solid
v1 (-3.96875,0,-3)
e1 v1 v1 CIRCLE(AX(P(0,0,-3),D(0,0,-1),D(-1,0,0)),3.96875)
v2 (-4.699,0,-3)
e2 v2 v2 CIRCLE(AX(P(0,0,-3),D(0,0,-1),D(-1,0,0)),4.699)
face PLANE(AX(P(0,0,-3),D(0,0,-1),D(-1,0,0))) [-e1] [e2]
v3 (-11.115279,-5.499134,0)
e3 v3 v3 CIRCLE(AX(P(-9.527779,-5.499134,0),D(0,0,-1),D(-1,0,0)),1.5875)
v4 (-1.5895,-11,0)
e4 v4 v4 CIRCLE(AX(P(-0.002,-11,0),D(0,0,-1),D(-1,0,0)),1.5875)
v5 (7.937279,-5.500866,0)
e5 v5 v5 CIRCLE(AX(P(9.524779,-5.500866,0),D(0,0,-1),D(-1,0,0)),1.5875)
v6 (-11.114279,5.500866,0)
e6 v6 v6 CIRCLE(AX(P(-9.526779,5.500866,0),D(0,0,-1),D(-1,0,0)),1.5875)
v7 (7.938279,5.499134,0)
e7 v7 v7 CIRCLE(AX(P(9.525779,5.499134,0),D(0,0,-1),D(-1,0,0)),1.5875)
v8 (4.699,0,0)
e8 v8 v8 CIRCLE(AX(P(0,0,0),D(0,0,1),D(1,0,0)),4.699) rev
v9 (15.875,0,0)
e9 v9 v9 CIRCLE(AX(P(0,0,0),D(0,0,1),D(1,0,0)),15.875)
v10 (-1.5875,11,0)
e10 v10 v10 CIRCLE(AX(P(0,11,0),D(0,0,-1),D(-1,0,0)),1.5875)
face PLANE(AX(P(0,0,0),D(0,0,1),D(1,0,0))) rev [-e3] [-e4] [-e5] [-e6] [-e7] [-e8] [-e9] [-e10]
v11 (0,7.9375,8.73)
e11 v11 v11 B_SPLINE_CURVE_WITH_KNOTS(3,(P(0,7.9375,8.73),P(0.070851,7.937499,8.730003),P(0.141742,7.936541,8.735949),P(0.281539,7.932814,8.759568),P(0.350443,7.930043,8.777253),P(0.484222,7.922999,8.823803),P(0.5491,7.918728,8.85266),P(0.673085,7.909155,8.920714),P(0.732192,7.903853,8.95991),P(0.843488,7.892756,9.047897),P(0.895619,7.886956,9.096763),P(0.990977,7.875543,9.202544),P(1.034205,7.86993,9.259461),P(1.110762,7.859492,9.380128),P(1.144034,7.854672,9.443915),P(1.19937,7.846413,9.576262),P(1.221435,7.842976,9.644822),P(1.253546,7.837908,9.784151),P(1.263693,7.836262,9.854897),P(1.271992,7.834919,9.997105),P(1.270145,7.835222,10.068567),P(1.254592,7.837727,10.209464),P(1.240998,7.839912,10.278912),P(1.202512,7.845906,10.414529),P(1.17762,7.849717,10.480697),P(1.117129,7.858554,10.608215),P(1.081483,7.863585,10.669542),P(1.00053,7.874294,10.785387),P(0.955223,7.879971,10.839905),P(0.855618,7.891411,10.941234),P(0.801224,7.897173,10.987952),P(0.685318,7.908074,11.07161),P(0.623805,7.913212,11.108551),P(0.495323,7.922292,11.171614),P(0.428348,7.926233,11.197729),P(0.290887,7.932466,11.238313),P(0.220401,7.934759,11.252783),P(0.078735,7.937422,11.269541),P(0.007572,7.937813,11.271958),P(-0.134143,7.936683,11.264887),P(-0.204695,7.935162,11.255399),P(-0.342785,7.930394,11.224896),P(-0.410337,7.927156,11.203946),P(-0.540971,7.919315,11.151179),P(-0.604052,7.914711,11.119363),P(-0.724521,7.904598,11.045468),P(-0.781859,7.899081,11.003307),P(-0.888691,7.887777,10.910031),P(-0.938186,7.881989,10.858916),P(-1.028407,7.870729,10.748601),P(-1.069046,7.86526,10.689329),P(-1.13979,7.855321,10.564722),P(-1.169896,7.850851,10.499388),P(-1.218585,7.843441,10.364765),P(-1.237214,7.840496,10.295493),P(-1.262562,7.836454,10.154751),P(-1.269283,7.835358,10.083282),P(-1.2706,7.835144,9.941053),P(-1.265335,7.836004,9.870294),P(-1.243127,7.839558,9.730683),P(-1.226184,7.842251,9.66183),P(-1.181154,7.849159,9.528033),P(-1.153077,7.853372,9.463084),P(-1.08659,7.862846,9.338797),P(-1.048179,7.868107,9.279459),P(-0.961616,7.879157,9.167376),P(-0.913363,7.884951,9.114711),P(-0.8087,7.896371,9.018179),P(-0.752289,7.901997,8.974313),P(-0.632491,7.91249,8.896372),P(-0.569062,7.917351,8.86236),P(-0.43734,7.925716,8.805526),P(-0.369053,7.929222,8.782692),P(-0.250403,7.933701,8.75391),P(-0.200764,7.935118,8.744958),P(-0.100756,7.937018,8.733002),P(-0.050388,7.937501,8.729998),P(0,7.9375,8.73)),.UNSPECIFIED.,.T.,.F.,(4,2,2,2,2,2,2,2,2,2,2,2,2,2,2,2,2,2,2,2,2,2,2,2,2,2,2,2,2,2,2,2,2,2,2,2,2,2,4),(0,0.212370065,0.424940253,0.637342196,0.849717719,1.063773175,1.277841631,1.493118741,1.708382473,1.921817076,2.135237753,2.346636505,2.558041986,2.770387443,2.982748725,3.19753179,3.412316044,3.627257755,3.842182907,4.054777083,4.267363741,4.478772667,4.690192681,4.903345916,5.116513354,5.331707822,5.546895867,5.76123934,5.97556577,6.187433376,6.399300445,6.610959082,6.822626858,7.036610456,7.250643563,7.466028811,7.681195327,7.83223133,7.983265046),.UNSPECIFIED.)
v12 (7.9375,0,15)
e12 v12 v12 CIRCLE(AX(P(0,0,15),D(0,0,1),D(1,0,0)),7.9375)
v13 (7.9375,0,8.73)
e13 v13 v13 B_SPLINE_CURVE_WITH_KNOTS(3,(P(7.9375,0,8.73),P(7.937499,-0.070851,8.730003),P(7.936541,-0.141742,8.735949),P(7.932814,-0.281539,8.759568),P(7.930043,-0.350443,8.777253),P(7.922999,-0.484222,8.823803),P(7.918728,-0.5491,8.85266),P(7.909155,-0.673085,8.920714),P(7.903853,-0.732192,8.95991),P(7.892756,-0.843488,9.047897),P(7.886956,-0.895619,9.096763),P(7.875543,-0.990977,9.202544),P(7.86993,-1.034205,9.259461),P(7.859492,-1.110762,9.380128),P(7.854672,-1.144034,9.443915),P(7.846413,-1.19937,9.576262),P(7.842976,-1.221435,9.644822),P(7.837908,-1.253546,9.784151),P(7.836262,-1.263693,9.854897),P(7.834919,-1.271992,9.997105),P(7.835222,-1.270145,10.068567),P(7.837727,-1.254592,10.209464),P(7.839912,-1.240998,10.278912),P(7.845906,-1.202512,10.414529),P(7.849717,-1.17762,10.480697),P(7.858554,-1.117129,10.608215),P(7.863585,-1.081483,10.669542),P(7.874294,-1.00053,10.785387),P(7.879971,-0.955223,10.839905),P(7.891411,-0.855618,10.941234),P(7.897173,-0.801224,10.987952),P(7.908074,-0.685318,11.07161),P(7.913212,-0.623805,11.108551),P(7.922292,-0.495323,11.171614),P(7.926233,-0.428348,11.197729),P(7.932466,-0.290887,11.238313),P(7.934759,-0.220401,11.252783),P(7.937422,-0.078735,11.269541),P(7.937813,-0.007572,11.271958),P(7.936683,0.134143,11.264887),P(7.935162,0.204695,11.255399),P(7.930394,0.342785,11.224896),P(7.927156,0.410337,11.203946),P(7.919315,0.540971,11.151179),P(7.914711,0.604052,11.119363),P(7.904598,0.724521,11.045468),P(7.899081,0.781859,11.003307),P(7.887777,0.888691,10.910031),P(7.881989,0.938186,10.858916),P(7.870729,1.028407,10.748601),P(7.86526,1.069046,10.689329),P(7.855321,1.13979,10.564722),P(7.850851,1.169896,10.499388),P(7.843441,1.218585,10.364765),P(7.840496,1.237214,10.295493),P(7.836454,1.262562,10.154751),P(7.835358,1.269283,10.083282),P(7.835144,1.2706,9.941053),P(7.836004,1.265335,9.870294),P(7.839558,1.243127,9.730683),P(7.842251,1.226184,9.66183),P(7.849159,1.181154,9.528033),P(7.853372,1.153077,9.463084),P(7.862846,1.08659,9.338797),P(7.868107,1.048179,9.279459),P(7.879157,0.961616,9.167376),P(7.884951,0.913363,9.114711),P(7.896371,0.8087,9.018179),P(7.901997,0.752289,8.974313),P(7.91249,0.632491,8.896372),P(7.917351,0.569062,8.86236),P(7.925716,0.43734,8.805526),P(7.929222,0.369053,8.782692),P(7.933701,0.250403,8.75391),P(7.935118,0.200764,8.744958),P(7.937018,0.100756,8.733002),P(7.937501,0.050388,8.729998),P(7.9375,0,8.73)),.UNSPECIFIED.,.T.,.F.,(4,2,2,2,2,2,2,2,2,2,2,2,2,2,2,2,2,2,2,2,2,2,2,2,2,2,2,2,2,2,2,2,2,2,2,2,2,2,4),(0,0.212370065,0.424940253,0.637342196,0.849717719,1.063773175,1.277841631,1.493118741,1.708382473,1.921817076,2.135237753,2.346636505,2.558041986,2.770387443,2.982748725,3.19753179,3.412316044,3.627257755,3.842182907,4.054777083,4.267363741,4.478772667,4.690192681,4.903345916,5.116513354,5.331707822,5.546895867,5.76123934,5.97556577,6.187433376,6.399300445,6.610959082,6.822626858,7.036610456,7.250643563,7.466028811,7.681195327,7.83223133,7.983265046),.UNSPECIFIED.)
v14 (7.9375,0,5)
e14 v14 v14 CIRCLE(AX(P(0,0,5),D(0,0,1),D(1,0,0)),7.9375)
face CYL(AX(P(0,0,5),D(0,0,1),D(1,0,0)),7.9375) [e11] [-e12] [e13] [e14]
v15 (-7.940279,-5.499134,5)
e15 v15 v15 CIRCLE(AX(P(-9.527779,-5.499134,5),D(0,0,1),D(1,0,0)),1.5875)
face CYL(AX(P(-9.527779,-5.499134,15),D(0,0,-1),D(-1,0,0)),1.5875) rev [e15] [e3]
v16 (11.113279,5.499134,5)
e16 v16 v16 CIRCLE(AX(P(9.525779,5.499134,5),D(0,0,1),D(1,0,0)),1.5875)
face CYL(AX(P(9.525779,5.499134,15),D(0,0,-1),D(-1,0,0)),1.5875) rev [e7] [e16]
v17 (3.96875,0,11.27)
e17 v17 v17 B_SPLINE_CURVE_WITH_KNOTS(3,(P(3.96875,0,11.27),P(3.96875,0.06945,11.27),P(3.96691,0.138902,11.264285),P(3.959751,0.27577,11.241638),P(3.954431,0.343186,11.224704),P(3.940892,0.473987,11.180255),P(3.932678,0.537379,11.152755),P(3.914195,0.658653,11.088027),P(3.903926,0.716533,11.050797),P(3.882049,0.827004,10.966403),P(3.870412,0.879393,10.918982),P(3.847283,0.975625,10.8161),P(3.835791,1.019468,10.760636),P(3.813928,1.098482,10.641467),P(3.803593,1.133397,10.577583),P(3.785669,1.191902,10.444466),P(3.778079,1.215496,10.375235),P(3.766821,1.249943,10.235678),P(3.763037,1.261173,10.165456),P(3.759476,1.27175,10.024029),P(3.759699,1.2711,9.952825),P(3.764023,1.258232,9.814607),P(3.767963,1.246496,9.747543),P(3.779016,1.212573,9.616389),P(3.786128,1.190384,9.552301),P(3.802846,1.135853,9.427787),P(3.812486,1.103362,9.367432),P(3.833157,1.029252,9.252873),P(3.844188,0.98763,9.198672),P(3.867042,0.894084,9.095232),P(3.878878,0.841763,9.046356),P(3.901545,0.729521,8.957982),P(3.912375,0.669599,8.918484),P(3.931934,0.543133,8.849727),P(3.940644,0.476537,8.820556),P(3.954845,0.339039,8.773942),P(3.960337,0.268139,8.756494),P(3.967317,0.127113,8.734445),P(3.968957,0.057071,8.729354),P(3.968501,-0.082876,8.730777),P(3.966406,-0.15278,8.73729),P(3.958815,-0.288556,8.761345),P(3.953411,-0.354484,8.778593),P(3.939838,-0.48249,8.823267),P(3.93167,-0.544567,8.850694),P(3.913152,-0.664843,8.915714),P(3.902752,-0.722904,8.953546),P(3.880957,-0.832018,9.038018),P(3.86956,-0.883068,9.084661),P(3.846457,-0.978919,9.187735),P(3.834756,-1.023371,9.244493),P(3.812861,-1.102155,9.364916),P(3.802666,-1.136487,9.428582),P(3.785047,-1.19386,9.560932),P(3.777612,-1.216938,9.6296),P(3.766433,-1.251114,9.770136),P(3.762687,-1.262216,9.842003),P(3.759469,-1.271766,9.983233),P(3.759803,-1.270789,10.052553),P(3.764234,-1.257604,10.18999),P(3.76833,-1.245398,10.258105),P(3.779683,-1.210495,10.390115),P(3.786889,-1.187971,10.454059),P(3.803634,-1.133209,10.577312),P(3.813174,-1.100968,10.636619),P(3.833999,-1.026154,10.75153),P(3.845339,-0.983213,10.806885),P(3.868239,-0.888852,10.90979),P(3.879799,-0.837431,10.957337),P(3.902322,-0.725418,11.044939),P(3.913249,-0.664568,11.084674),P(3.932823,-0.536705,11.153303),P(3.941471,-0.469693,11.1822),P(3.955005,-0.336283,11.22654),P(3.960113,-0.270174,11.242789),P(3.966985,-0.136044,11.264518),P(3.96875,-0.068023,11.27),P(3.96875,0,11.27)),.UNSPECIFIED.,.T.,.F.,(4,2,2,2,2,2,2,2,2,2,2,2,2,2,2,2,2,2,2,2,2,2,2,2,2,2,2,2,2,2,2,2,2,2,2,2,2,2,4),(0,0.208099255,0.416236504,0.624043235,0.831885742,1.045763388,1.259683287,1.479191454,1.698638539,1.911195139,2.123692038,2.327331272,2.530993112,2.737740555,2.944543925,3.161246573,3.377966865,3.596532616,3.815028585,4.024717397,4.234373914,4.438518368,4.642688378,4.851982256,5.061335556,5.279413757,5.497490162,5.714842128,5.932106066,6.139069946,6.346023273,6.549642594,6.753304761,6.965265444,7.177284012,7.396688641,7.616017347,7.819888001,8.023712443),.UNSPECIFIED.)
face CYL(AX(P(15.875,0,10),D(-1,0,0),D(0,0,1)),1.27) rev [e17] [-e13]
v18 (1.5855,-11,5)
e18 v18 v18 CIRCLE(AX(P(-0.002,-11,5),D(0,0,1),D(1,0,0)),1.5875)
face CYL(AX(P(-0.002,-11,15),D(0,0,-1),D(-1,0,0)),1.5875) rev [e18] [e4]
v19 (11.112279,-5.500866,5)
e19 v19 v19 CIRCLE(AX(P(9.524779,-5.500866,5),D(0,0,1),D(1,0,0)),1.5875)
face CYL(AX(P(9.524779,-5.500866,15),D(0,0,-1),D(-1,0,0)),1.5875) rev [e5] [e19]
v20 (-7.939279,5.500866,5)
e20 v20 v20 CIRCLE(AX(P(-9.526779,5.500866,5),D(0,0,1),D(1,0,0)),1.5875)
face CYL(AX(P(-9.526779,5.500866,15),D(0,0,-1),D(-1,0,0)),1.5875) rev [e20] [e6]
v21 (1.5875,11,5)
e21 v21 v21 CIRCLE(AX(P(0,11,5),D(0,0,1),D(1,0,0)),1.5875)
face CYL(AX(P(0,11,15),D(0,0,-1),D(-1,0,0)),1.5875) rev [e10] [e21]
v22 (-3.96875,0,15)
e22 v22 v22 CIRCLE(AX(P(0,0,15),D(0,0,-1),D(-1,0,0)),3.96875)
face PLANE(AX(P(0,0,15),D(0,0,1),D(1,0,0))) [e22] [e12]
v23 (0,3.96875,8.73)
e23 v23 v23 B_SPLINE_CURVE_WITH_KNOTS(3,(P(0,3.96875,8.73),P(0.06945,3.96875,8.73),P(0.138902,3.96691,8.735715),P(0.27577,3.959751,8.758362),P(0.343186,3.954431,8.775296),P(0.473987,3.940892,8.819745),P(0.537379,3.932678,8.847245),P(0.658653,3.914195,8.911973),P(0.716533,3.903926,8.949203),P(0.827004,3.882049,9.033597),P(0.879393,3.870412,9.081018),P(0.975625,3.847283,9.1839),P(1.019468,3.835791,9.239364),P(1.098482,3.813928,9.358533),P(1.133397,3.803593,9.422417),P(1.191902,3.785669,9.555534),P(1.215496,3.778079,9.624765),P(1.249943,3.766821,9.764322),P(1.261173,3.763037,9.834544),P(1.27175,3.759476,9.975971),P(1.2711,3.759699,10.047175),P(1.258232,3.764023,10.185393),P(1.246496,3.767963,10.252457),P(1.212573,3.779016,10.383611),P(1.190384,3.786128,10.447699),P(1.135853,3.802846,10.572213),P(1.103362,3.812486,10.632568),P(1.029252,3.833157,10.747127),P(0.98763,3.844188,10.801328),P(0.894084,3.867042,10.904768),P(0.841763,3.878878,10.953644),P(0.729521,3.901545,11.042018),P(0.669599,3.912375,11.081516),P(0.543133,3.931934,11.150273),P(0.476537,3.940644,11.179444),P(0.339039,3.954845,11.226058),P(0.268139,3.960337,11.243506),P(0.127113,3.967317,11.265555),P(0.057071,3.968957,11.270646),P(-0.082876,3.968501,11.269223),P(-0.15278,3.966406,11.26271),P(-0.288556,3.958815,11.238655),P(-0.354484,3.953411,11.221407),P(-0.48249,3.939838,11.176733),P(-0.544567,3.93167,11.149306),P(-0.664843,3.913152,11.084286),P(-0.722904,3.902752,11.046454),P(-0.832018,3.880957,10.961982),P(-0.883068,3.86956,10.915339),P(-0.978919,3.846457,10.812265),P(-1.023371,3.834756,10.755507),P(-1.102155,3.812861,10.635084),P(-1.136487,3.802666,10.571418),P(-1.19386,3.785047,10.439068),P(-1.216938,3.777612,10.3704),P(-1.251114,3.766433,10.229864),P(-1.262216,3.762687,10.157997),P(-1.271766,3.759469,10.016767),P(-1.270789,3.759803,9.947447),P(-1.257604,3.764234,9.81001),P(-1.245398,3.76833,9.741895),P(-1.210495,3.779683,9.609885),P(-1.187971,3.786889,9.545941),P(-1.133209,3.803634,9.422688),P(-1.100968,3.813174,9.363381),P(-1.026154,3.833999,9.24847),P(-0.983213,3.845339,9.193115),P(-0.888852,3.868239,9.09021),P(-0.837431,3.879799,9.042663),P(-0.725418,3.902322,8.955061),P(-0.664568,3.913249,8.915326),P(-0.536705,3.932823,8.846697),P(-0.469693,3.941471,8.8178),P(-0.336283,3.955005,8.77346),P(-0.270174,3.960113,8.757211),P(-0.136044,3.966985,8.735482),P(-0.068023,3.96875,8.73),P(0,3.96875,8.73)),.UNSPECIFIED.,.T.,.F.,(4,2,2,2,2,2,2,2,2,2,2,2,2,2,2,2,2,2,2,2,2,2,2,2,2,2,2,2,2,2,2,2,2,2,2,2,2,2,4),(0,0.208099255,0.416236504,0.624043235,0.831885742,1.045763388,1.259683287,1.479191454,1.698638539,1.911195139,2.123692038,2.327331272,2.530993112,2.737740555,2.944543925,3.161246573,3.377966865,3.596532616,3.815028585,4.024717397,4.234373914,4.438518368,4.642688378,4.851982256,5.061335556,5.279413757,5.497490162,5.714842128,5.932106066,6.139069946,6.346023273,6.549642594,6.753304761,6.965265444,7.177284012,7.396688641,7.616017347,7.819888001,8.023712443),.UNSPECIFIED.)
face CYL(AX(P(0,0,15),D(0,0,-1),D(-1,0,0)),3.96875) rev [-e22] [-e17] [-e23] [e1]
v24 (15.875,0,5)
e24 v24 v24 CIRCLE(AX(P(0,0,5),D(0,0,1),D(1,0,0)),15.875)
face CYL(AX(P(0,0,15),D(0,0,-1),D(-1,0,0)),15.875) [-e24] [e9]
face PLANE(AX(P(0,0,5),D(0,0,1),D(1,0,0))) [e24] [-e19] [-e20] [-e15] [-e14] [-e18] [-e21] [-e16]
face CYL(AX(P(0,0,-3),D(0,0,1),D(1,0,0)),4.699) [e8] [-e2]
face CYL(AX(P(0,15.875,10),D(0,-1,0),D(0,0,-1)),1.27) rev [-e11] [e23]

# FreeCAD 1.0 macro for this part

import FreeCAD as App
import Part
import Sketcher
Q = App.Units.Quantity

doc = App.newDocument("Part")
body = doc.addObject("PartDesign::Body", "Body")

# Sketch on XY plane
sketch1 = body.newObject("Sketcher::SketchObject", "Sketch")
sketch1.AttachmentSupport = (doc.getObject("XY_Plane"), [""])
sketch1.MapMode = "FlatFace"
sketch1.addGeometry(Part.Circle(App.Vector(0, 0, 0), App.Vector(0, 0, 1), 16), False)
sketch1.addConstraint(Sketcher.Constraint("Coincident", 0, 3, -1, 1))
sketch1.addConstraint(Sketcher.Constraint("Diameter", 0, Q("1.25 in")))
pad1 = body.newObject("PartDesign::Pad", "Pad")
pad1.Profile = sketch1
pad1.Length = 15

# Sketch on XY plane
sketch2 = body.newObject("Sketcher::SketchObject", "Sketch001")
sketch2.AttachmentSupport = (doc.getObject("XY_Plane"), [""])
sketch2.MapMode = "FlatFace"
sketch2.AttachmentOffset = App.Placement(App.Vector(0, 0, 15), App.Rotation())
sketch2.addGeometry(Part.Circle(App.Vector(0, 0, 0), App.Vector(0, 0, 1), 25), False)
sketch2.addGeometry(Part.Circle(App.Vector(0, 0, 0), App.Vector(0, 0, 1), 8), False)
sketch2.addConstraint(Sketcher.Constraint("Coincident", 0, 3, -1, 1))
sketch2.addConstraint(Sketcher.Constraint("Coincident", 1, 3, -1, 1))
sketch2.addConstraint(Sketcher.Constraint("Diameter", 1, Q("0.625 in")))
sketch2.addConstraint(Sketcher.Constraint("Diameter", 0, 50.783314))
pocket1 = body.newObject("PartDesign::Pocket", "Pocket")
pocket1.Profile = sketch2
pocket1.Length = 10

# Sketch on XY plane
sketch3 = body.newObject("Sketcher::SketchObject", "Sketch002")
sketch3.AttachmentSupport = (doc.getObject("XY_Plane"), [""])
sketch3.MapMode = "FlatFace"
sketch3.addGeometry(Part.Circle(App.Vector(0, 0, 0), App.Vector(0, 0, 1), 4), False)
sketch3.addConstraint(Sketcher.Constraint("Coincident", 0, 3, -1, 1))
sketch3.addConstraint(Sketcher.Constraint("Diameter", 0, Q("0.3125 in")))
pocket2 = body.newObject("PartDesign::Pocket", "Pocket001")
pocket2.Profile = sketch3
pocket2.Type = "ThroughAll"
pocket2.Reversed = True

# Sketch on XY plane
sketch4 = body.newObject("Sketcher::SketchObject", "Sketch003")
sketch4.AttachmentSupport = (doc.getObject("XY_Plane"), [""])
sketch4.MapMode = "FlatFace"
sketch4.AttachmentOffset = App.Placement(App.Vector(0, 0, -3), App.Rotation())
sketch4.addGeometry(Part.Circle(App.Vector(0, 0, 0), App.Vector(0, 0, 1), 4.7), False)
sketch4.addGeometry(Part.Circle(App.Vector(0, 0, 0), App.Vector(0, 0, 1), 4), False)
sketch4.addConstraint(Sketcher.Constraint("Coincident", 0, 3, -1, 1))
sketch4.addConstraint(Sketcher.Constraint("Coincident", 1, 3, -1, 1))
sketch4.addConstraint(Sketcher.Constraint("Diameter", 0, Q("0.37 in")))
sketch4.addConstraint(Sketcher.Constraint("Diameter", 1, Q("0.3125 in")))
pad2 = body.newObject("PartDesign::Pad", "Pad001")
pad2.Profile = sketch4
pad2.Length = 3

# Sketch on XY plane
sketch5 = body.newObject("Sketcher::SketchObject", "Sketch004")
sketch5.AttachmentSupport = (doc.getObject("XY_Plane"), [""])
sketch5.MapMode = "FlatFace"
sketch5.addGeometry(Part.Circle(App.Vector(0, 11, 0), App.Vector(0, 0, 1), 1.6), False)
sketch5.addGeometry(Part.Circle(App.Vector(-9.5, 5.5, 0), App.Vector(0, 0, 1), 1.6), False)
sketch5.addGeometry(Part.Circle(App.Vector(-9.5, -5.5, 0), App.Vector(0, 0, 1), 1.6), False)
sketch5.addGeometry(Part.Circle(App.Vector(0, -11, 0), App.Vector(0, 0, 1), 1.6), False)
sketch5.addGeometry(Part.Circle(App.Vector(9.5, -5.5, 0), App.Vector(0, 0, 1), 1.6), False)
sketch5.addGeometry(Part.Circle(App.Vector(9.5, 5.5, 0), App.Vector(0, 0, 1), 1.6), False)
sketch5.addConstraint(Sketcher.Constraint("Equal", 0, 1))
sketch5.addConstraint(Sketcher.Constraint("Equal", 1, 2))
sketch5.addConstraint(Sketcher.Constraint("Equal", 2, 3))
sketch5.addConstraint(Sketcher.Constraint("Equal", 3, 4))
sketch5.addConstraint(Sketcher.Constraint("Equal", 4, 5))
sketch5.addConstraint(Sketcher.Constraint("PointOnObject", 0, 3, -2))
sketch5.addConstraint(Sketcher.Constraint("Diameter", 0, Q("0.125 in")))
sketch5.addConstraint(Sketcher.Constraint("DistanceY", -1, 1, 0, 3, 11.0))
sketch5.addConstraint(Sketcher.Constraint("DistanceX", 3, 3, -1, 1, 0.002))
sketch5.addConstraint(Sketcher.Constraint("DistanceY", 3, 3, -1, 1, 11.0))
sketch5.addConstraint(Sketcher.Constraint("DistanceX", 2, 3, 1, 3, 0.001))
sketch5.addConstraint(Sketcher.Constraint("DistanceY", 2, 3, 1, 3, 11.0))
sketch5.addConstraint(Sketcher.Constraint("DistanceX", 4, 3, 5, 3, 0.001))
sketch5.addConstraint(Sketcher.Constraint("DistanceY", 4, 3, 5, 3, 11.0))
sketch5.addConstraint(Sketcher.Constraint("DistanceX", 1, 3, -1, 1, 9.526779))
sketch5.addConstraint(Sketcher.Constraint("DistanceX", -1, 1, 4, 3, 9.524779))
sketch5.addConstraint(Sketcher.Constraint("DistanceY", -1, 1, 1, 3, 5.500866))
sketch5.addConstraint(Sketcher.Constraint("DistanceY", 4, 3, -1, 1, 5.500866))
pocket3 = body.newObject("PartDesign::Pocket", "Pocket002")
pocket3.Profile = sketch5
pocket3.Type = "ThroughAll"
pocket3.Reversed = True

# Sketch on XZ plane
sketch6 = body.newObject("Sketcher::SketchObject", "Sketch005")
sketch6.AttachmentSupport = (doc.getObject("XZ_Plane"), [""])
sketch6.MapMode = "FlatFace"
sketch6.addGeometry(Part.Circle(App.Vector(0, 10, 0), App.Vector(0, 0, 1), 1.3), False)
sketch6.addConstraint(Sketcher.Constraint("PointOnObject", 0, 3, -2))
sketch6.addConstraint(Sketcher.Constraint("Diameter", 0, Q("0.1 in")))
sketch6.addConstraint(Sketcher.Constraint("DistanceY", -1, 1, 0, 3, 10.0))
pocket4 = body.newObject("PartDesign::Pocket", "Pocket003")
pocket4.Profile = sketch6
pocket4.Type = "ThroughAll"

# Sketch on YZ plane
sketch7 = body.newObject("Sketcher::SketchObject", "Sketch006")
sketch7.AttachmentSupport = (doc.getObject("YZ_Plane"), [""])
sketch7.MapMode = "FlatFace"
sketch7.addGeometry(Part.Circle(App.Vector(0, 10, 0), App.Vector(0, 0, 1), 1.3), False)
sketch7.addConstraint(Sketcher.Constraint("PointOnObject", 0, 3, -2))
sketch7.addConstraint(Sketcher.Constraint("Diameter", 0, Q("0.1 in")))
sketch7.addConstraint(Sketcher.Constraint("DistanceY", -1, 1, 0, 3, 10.0))
pocket5 = body.newObject("PartDesign::Pocket", "Pocket004")
pocket5.Profile = sketch7
pocket5.Type = "ThroughAll"
pocket5.Reversed = True

doc.recompute()
